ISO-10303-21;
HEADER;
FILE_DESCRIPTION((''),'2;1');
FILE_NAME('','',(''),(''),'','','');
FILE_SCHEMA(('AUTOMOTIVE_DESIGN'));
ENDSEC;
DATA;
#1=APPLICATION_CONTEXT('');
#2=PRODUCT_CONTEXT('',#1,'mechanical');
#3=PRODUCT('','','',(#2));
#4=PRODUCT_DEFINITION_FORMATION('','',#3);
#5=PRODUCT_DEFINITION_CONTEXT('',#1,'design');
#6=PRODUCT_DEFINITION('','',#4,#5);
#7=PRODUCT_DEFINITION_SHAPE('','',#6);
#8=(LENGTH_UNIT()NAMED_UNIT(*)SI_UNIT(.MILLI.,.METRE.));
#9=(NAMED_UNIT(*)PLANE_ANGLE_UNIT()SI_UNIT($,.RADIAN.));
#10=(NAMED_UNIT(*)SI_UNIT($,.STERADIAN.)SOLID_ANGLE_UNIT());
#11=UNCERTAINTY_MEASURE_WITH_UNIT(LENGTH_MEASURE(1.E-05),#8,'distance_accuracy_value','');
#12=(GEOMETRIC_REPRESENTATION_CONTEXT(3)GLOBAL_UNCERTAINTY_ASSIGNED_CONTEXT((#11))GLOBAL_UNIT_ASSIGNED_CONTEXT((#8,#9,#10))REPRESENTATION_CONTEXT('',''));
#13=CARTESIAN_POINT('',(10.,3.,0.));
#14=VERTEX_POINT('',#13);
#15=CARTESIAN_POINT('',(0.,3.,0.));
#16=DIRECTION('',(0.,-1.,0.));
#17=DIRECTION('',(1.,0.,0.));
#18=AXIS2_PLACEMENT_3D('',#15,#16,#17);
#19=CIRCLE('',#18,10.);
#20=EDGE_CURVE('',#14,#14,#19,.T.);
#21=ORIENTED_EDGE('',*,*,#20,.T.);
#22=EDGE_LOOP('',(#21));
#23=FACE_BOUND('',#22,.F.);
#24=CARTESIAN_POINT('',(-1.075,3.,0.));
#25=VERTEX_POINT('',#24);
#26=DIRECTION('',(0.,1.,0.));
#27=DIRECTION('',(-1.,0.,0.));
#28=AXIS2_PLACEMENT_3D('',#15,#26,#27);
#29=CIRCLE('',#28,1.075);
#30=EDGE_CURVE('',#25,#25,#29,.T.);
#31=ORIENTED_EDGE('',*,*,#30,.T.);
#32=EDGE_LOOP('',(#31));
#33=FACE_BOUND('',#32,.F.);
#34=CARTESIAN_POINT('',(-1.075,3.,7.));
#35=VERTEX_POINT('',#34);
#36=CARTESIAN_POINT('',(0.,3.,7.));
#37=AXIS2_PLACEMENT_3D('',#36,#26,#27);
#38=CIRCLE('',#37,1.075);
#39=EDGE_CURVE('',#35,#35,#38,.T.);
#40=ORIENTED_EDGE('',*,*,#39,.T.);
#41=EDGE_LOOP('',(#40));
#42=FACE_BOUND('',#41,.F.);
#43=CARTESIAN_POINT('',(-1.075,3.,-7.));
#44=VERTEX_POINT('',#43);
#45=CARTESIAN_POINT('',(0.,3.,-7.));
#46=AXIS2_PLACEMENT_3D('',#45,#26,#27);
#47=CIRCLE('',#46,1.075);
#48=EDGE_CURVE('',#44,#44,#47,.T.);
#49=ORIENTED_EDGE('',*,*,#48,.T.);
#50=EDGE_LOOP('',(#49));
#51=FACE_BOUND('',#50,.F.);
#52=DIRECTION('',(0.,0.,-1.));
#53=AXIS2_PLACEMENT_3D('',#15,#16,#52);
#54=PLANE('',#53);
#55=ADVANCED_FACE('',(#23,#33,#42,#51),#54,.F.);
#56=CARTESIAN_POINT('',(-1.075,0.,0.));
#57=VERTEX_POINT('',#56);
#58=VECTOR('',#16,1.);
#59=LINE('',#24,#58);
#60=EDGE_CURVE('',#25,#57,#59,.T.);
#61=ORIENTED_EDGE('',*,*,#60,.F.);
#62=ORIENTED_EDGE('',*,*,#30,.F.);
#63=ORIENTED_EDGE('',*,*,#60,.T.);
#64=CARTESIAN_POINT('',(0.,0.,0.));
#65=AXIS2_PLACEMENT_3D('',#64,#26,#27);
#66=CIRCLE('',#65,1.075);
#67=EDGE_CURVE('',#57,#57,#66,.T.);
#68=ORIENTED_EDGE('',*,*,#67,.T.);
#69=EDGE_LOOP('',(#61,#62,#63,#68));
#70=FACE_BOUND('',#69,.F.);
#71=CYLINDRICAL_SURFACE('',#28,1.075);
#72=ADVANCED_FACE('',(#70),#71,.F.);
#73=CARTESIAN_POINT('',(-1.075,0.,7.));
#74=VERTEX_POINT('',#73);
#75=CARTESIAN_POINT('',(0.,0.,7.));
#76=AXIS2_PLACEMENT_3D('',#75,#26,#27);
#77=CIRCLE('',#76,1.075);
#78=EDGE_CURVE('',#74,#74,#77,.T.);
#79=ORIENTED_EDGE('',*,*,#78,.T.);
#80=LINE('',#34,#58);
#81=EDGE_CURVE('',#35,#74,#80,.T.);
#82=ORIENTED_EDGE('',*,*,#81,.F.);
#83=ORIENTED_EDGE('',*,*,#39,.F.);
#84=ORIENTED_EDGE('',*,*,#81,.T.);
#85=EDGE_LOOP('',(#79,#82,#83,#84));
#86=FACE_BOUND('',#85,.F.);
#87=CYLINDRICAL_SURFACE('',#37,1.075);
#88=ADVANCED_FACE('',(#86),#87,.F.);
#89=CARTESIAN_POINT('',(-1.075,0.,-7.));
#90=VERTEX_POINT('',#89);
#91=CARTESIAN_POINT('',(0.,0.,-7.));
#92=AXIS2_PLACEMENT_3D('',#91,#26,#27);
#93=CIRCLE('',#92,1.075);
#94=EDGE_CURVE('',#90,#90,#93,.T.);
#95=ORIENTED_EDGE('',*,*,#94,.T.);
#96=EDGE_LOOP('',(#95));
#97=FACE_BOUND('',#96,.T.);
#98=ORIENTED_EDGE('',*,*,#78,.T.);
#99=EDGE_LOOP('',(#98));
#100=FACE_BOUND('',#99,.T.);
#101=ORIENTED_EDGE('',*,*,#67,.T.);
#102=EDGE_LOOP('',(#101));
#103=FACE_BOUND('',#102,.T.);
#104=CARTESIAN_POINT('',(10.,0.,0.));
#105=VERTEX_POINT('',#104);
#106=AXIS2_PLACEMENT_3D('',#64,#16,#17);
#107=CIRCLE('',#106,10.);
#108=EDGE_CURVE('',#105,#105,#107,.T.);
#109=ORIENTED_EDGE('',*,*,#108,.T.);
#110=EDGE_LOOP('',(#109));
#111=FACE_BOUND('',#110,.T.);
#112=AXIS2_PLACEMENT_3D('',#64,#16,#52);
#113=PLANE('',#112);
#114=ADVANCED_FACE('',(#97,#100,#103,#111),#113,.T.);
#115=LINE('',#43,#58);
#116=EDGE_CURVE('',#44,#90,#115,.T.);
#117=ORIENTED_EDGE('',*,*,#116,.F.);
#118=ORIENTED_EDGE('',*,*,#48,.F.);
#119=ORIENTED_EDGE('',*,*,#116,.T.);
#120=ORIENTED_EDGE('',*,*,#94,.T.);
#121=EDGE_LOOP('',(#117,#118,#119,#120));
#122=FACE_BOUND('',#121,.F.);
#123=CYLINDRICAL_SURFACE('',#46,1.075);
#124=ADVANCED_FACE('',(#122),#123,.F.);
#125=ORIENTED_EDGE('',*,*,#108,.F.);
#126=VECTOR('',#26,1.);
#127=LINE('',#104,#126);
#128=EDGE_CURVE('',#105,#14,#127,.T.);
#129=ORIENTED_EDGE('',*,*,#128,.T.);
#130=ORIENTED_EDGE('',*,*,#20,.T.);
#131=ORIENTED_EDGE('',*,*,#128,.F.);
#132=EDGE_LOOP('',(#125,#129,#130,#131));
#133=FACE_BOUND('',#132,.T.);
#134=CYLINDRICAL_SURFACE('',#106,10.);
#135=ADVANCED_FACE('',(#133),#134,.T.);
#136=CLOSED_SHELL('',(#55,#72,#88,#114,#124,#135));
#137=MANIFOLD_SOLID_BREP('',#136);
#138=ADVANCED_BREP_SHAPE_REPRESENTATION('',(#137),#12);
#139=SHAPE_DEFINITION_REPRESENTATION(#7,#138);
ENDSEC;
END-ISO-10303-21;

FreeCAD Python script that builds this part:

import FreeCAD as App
import Part
import Sketcher

V = App.Vector
Q = App.Units.Quantity

doc = App.newDocument("Part")
body = doc.addObject("PartDesign::Body", "Body")

sketch1 = doc.addObject("Sketcher::SketchObject", "Sketch")
body.addObject(sketch1)
sketch1.AttachmentSupport = (doc.XZ_Plane, [""])
sketch1.MapMode = "FlatFace"
sketch1.addGeometry(Part.Circle(V(0, 0, 0), V(0, 0, 1), 10), False)
sketch1.addConstraint(Sketcher.Constraint("Coincident", 0, 3, -1, 1))
sketch1.addConstraint(Sketcher.Constraint("Diameter", 0, Q("20 mm")))
pad1 = doc.addObject("PartDesign::Pad", "Pad")
body.addObject(pad1)
pad1.Profile = sketch1
pad1.Length = 3
pad1.Reversed = True

sketch2 = doc.addObject("Sketcher::SketchObject", "Sketch001")
body.addObject(sketch2)
sketch2.AttachmentSupport = (doc.XZ_Plane, [""])
sketch2.MapMode = "FlatFace"
sketch2.AttachmentOffset = App.Placement(V(0, 0, -3), App.Rotation())
sketch2.addGeometry(Part.Circle(V(0, -7, 0), V(0, 0, 1), 1.075), False)
sketch2.addGeometry(Part.Circle(V(0, 0, 0), V(0, 0, 1), 1.075), False)
sketch2.addGeometry(Part.Circle(V(0, 7, 0), V(0, 0, 1), 1.075), False)
sketch2.addConstraint(Sketcher.Constraint("Coincident", 1, 3, -1, 1))
sketch2.addConstraint(Sketcher.Constraint("Equal", 0, 1))
sketch2.addConstraint(Sketcher.Constraint("Equal", 1, 2))
sketch2.addConstraint(Sketcher.Constraint("Symmetric", 0, 3, 2, 3, -1, 1))
sketch2.addConstraint(Sketcher.Constraint("PointOnObject", 0, 3, -2))
sketch2.addConstraint(Sketcher.Constraint("Diameter", 0, Q("2.15 mm")))
sketch2.addConstraint(Sketcher.Constraint("DistanceY", 0, 3, -1, 1, Q("7 mm")))
pocket1 = doc.addObject("PartDesign::Pocket", "Pocket")
body.addObject(pocket1)
pocket1.Profile = sketch2
pocket1.Length = 8.787
pocket1.Reversed = True

doc.recompute()
